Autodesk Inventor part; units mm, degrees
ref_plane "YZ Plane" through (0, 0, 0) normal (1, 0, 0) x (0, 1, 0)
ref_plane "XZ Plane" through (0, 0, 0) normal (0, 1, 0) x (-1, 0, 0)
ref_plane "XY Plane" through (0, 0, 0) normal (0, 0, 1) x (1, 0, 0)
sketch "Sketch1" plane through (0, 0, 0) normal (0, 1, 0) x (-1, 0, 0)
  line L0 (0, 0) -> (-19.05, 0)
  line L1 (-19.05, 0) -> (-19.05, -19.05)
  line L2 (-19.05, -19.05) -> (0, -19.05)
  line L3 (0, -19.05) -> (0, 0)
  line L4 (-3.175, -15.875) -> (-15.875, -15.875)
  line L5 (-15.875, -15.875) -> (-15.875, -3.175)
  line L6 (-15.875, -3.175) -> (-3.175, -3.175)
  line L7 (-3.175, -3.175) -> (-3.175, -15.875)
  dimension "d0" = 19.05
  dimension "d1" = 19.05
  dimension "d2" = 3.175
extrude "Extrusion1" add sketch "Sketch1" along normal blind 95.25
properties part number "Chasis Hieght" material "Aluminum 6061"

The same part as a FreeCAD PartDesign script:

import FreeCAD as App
import Part
import Sketcher

V = App.Vector
Q = App.Units.Quantity


def add_polygon(sketch, points):
    """Adds a closed chain of lines whose ends are joined by coincident constraints."""
    first, n = sketch.GeometryCount, len(points)
    for a, b in zip(points, points[1:] + points[:1]):
        sketch.addGeometry(Part.LineSegment(App.Vector(*a, 0), App.Vector(*b, 0)), False)
    for i in range(n):
        sketch.addConstraint(Sketcher.Constraint("Coincident", first + i, 2, first + (i + 1) % n, 1))

doc = App.newDocument("Part")
body = doc.addObject("PartDesign::Body", "Body")

# Sketch on XZ plane
sketch1 = doc.addObject("Sketcher::SketchObject", "Sketch")
body.addObject(sketch1)
sketch1.AttachmentSupport = (doc.XZ_Plane, [""])
sketch1.MapMode = "FlatFace"
add_polygon(sketch1, [(0, -19), (0, 0), (19, 0), (19, -19)])  # lines 0-3
add_polygon(sketch1, [(3, -3), (3, -16), (16, -16), (16, -3)])  # lines 4-7
sketch1.addConstraint(Sketcher.Constraint("Vertical", 0))
sketch1.addConstraint(Sketcher.Constraint("Horizontal", 1))
sketch1.addConstraint(Sketcher.Constraint("Vertical", 2))
sketch1.addConstraint(Sketcher.Constraint("Horizontal", 3))
sketch1.addConstraint(Sketcher.Constraint("Vertical", 4))
sketch1.addConstraint(Sketcher.Constraint("Horizontal", 5))
sketch1.addConstraint(Sketcher.Constraint("Vertical", 6))
sketch1.addConstraint(Sketcher.Constraint("Horizontal", 7))
sketch1.addConstraint(Sketcher.Constraint("Coincident", 0, 2, -1, 1))
sketch1.addConstraint(Sketcher.Constraint("Equal", 3, 0))
sketch1.addConstraint(Sketcher.Constraint("Equal", 7, 4))
sketch1.addConstraint(Sketcher.Constraint("DistanceX", 1, 1, 1, 2, Q("0.75 in")))
sketch1.addConstraint(Sketcher.Constraint("DistanceX", 5, 1, 5, 2, Q("0.5 in")))
sketch1.addConstraint(Sketcher.Constraint("DistanceX", -1, 1, 4, 2, Q("0.125 in")))
sketch1.addConstraint(Sketcher.Constraint("DistanceY", 6, 2, -1, 1, Q("0.125 in")))
pad1 = doc.addObject("PartDesign::Pad", "Pad")
body.addObject(pad1)
pad1.Profile = sketch1
pad1.Length = Q("3.75 in")
pad1.Reversed = True

doc.recompute()
